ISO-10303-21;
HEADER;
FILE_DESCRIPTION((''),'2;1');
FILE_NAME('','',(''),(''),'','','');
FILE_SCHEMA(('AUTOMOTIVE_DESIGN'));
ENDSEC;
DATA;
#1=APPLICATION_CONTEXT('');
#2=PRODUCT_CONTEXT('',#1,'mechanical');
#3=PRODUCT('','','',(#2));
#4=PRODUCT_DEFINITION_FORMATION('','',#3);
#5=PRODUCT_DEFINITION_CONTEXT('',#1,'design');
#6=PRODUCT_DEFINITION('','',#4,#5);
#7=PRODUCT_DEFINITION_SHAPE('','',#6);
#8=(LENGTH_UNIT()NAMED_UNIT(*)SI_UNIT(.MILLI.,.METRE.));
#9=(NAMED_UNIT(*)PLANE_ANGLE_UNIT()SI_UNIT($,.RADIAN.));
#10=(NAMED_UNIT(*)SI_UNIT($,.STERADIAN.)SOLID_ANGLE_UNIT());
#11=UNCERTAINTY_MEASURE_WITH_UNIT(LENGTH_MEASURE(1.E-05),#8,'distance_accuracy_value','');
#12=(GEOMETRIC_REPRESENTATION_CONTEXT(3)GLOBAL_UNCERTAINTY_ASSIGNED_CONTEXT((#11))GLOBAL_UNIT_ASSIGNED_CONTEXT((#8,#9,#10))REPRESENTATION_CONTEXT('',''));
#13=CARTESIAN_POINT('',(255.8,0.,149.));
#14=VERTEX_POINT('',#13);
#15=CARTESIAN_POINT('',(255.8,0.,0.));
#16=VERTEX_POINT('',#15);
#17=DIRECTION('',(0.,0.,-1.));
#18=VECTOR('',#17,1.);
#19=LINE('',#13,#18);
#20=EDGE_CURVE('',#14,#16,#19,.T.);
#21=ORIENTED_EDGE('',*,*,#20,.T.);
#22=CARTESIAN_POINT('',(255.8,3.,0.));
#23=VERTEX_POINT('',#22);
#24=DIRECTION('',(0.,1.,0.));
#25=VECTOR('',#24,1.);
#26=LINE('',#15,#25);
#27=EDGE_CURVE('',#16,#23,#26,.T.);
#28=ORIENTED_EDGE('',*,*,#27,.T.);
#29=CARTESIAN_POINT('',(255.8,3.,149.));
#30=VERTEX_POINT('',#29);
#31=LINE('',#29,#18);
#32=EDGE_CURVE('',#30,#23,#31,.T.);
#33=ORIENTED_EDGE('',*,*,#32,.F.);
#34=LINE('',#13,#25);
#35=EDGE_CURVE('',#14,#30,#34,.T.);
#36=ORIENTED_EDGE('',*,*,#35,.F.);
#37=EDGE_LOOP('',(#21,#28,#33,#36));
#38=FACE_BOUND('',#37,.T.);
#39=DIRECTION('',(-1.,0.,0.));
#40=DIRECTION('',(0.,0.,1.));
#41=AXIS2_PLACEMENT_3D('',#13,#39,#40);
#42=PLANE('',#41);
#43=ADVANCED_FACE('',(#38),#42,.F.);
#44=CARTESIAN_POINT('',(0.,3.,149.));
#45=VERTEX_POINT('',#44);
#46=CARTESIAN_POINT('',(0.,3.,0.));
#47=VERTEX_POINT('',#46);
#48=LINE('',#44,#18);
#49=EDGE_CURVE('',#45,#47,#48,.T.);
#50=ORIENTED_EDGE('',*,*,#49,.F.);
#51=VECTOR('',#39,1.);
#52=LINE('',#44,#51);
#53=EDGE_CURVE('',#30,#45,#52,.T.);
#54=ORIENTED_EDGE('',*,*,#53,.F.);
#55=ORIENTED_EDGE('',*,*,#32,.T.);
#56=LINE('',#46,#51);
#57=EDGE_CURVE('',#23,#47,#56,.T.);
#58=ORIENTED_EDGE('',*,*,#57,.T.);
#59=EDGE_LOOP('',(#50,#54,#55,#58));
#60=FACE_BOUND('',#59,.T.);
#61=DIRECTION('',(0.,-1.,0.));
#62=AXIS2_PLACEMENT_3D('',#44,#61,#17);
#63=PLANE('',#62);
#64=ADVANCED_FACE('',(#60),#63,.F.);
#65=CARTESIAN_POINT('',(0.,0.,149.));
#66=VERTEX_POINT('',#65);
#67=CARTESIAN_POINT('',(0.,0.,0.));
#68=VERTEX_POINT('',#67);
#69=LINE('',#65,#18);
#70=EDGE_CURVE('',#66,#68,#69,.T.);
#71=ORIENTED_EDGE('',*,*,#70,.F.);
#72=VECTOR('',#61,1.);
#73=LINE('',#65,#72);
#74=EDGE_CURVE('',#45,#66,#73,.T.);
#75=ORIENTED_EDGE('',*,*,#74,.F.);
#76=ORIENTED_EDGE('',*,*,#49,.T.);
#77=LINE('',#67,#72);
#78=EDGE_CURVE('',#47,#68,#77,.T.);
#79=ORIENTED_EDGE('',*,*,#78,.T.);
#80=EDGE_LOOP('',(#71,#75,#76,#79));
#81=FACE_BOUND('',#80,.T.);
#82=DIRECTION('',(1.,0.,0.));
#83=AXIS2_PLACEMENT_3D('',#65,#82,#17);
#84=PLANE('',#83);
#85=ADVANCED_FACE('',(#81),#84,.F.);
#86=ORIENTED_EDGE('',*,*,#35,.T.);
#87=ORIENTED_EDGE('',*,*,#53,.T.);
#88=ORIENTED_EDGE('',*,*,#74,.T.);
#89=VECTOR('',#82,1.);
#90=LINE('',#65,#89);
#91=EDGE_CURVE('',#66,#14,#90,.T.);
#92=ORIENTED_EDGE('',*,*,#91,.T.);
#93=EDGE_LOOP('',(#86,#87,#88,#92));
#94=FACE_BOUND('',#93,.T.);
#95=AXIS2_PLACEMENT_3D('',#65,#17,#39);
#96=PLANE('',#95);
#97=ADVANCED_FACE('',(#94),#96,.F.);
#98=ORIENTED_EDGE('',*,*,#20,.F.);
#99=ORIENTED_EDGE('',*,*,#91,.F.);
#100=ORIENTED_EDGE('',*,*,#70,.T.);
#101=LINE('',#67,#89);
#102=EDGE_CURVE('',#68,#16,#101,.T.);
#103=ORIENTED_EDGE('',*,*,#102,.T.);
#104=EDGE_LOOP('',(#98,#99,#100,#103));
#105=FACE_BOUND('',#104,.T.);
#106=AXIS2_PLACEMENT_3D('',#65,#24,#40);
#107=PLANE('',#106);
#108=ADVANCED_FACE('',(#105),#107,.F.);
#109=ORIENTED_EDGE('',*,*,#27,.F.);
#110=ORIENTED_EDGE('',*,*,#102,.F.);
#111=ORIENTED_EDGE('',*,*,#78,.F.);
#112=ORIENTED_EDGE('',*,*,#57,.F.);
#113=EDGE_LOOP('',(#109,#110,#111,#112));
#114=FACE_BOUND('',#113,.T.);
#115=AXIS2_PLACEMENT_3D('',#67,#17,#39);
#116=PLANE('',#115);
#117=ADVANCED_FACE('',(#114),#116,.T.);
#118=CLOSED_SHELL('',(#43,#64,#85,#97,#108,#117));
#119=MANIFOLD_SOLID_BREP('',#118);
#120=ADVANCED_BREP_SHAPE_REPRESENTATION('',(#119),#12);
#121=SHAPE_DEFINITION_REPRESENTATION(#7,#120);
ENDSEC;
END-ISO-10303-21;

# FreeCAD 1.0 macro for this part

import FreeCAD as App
import Part
import Sketcher
Q = App.Units.Quantity

doc = App.newDocument("Part")
body = doc.addObject("PartDesign::Body", "Body")

# Sketch on XY plane
sketch1 = body.newObject("Sketcher::SketchObject", "Sketch")
sketch1.AttachmentSupport = (doc.getObject("XY_Plane"), [""])
sketch1.MapMode = "FlatFace"
sketch1.addGeometry([
    Part.LineSegment(App.Vector(0, 3, 0), App.Vector(0, 0, 0)),
    Part.LineSegment(App.Vector(0, 0, 0), App.Vector(255.8, 0, 0)),
    Part.LineSegment(App.Vector(255.8, 0, 0), App.Vector(255.8, 3, 0)),
    Part.LineSegment(App.Vector(255.8, 3, 0), App.Vector(0, 3, 0)),
], False)
sketch1.addConstraint([
    Sketcher.Constraint("Coincident", 0, 2, 1, 1),
    Sketcher.Constraint("Coincident", 1, 2, 2, 1),
    Sketcher.Constraint("Coincident", 2, 2, 3, 1),
    Sketcher.Constraint("Coincident", 3, 2, 0, 1),
    Sketcher.Constraint("Vertical", 0),
    Sketcher.Constraint("Horizontal", 1),
    Sketcher.Constraint("Vertical", 2),
    Sketcher.Constraint("Horizontal", 3),
    Sketcher.Constraint("Coincident", 0, 2, -1, 1),
    Sketcher.Constraint("DistanceY", 0, 2, 0, 1, Q("3 mm")),
    Sketcher.Constraint("DistanceX", 1, 1, 1, 2, Q("255.8 mm")),
])
pad1 = body.newObject("PartDesign::Pad", "Pad")
pad1.Profile = sketch1
pad1.Length = 149

doc.recompute()
